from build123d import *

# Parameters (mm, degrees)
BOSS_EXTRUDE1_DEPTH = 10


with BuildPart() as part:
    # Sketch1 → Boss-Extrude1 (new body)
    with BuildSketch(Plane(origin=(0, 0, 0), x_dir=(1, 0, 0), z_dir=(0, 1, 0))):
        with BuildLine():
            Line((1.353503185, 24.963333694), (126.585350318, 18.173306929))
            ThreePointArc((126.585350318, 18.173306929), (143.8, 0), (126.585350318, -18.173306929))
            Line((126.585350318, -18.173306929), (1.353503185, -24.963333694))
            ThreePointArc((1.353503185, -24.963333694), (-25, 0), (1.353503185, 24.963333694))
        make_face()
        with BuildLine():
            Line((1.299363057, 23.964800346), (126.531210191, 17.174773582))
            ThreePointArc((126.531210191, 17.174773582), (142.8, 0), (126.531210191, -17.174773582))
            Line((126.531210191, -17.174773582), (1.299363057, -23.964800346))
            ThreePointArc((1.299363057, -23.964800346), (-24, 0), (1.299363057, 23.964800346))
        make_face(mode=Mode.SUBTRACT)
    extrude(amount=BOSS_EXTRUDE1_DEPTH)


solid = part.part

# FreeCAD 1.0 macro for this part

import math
import FreeCAD as App
import Part
import Sketcher

V = App.Vector

doc = App.newDocument("Part")
body = doc.addObject("PartDesign::Body", "Body")

# Sketch on XZ plane
sketch1 = body.newObject("Sketcher::SketchObject", "Sketch")
sketch1.AttachmentSupport = (doc.getObject("XZ_Plane"), [""])
sketch1.MapMode = "FlatFace"
sketch1.addGeometry(Part.LineSegment(V(127, -18, 0), V(1, -25, 0)), False)
sketch1.addGeometry(Part.ArcOfCircle(Part.Circle(V(0, 0, 0), V(0, 0, 1), 25), math.radians(87), math.radians(273)), False)
sketch1.addGeometry(Part.LineSegment(V(1, 25, 0), V(127, 18, 0)), False)
sketch1.addGeometry(Part.ArcOfCircle(Part.Circle(V(126, 0, 0), V(0, 0, 1), 18), math.radians(-87), math.radians(87)), False)
sketch1.addGeometry(Part.LineSegment(V(1, -24, 0), V(127, -17, 0)), False)
sketch1.addGeometry(Part.ArcOfCircle(Part.Circle(V(126, 0, 0), V(0, 0, 1), 17), math.radians(-87), math.radians(87)), False)
sketch1.addGeometry(Part.LineSegment(V(127, 17, 0), V(1, 24, 0)), False)
sketch1.addGeometry(Part.ArcOfCircle(Part.Circle(V(0, 0, 0), V(0, 0, 1), 24), math.radians(87), math.radians(273)), False)
sketch1.addConstraint(Sketcher.Constraint("Tangent", 0, 2, 1, 2))
sketch1.addConstraint(Sketcher.Constraint("Tangent", 1, 1, 2, 1))
sketch1.addConstraint(Sketcher.Constraint("Tangent", 2, 2, 3, 2))
sketch1.addConstraint(Sketcher.Constraint("Tangent", 3, 1, 0, 1))
sketch1.addConstraint(Sketcher.Constraint("Tangent", 4, 2, 5, 1))
sketch1.addConstraint(Sketcher.Constraint("Tangent", 5, 2, 6, 1))
sketch1.addConstraint(Sketcher.Constraint("Tangent", 6, 2, 7, 1))
sketch1.addConstraint(Sketcher.Constraint("Tangent", 7, 2, 4, 1))
sketch1.addConstraint(Sketcher.Constraint("Coincident", 1, 3, -1, 1))
sketch1.addConstraint(Sketcher.Constraint("Coincident", 7, 3, -1, 1))
sketch1.addConstraint(Sketcher.Constraint("Coincident", 5, 3, 3, 3))
sketch1.addConstraint(Sketcher.Constraint("PointOnObject", 3, 3, -1))
sketch1.addConstraint(Sketcher.Constraint("Parallel", 0, 4))
sketch1.addConstraint(Sketcher.Constraint("Radius", 1, 25.0))
sketch1.addConstraint(Sketcher.Constraint("Radius", 7, 24.0))
sketch1.addConstraint(Sketcher.Constraint("Radius", 3, 18.2))
sketch1.addConstraint(Sketcher.Constraint("DistanceX", -1, 1, 3, 3, 125.6))
pad1 = body.newObject("PartDesign::Pad", "Pad")
pad1.Profile = sketch1
pad1.Length = 10
pad1.Reversed = True

doc.recompute()
